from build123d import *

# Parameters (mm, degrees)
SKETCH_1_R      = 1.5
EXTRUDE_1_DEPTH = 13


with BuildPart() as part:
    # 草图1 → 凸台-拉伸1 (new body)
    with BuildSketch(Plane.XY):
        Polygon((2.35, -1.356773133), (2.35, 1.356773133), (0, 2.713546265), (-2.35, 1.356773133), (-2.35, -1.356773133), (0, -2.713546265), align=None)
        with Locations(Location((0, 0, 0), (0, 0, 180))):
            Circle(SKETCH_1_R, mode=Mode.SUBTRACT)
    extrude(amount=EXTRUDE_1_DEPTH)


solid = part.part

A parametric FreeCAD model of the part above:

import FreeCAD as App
import Part
import Sketcher

V = App.Vector
Q = App.Units.Quantity

doc = App.newDocument("Part")
body = doc.addObject("PartDesign::Body", "Body")

# Sketch on XY plane
sketch1 = doc.addObject("Sketcher::SketchObject", "Sketch")
body.addObject(sketch1)
sketch1.AttachmentSupport = (doc.XY_Plane, [""])
sketch1.MapMode = "FlatFace"
sketch1.addGeometry(Part.LineSegment(V(2.4, -1.4, 0), V(2.4, 1.4, 0)), False)
sketch1.addGeometry(Part.LineSegment(V(2.4, 1.4, 0), V(0, 2.7, 0)), False)
sketch1.addGeometry(Part.LineSegment(V(0, 2.7, 0), V(-2.4, 1.4, 0)), False)
sketch1.addGeometry(Part.LineSegment(V(-2.4, 1.4, 0), V(-2.4, -1.4, 0)), False)
sketch1.addGeometry(Part.LineSegment(V(-2.4, -1.4, 0), V(0, -2.7, 0)), False)
sketch1.addGeometry(Part.LineSegment(V(0, -2.7, 0), V(2.4, -1.4, 0)), False)
sketch1.addGeometry(Part.Circle(V(0, 0, 0), V(0, 0, 1), 1.5), False)
sketch1.addConstraint(Sketcher.Constraint("Coincident", 0, 2, 1, 1))
sketch1.addConstraint(Sketcher.Constraint("Coincident", 1, 2, 2, 1))
sketch1.addConstraint(Sketcher.Constraint("Coincident", 2, 2, 3, 1))
sketch1.addConstraint(Sketcher.Constraint("Coincident", 3, 2, 4, 1))
sketch1.addConstraint(Sketcher.Constraint("Coincident", 4, 2, 5, 1))
sketch1.addConstraint(Sketcher.Constraint("Coincident", 5, 2, 0, 1))
sketch1.addConstraint(Sketcher.Constraint("Vertical", 0))
sketch1.addConstraint(Sketcher.Constraint("Vertical", 3))
sketch1.addConstraint(Sketcher.Constraint("Coincident", 6, 3, -1, 1))
sketch1.addConstraint(Sketcher.Constraint("Symmetric", 0, 2, 3, 2, -1, 1))
sketch1.addConstraint(Sketcher.Constraint("Symmetric", 1, 2, 4, 2, -1, 1))
sketch1.addConstraint(Sketcher.Constraint("PointOnObject", 1, 2, -2))
sketch1.addConstraint(Sketcher.Constraint("Parallel", 2, 5))
sketch1.addConstraint(Sketcher.Constraint("Horizontal", 0, 2, 2, 2))
sketch1.addConstraint(Sketcher.Constraint("Diameter", 6, 3.0))
sketch1.addConstraint(Sketcher.Constraint("Angle", 1, Q("150 deg")))
sketch1.addConstraint(Sketcher.Constraint("DistanceX", 2, 2, 0, 2, 4.7))
sketch1.addConstraint(Sketcher.Constraint("DistanceY", 0, 1, 0, 2, 2.713546))
pad1 = doc.addObject("PartDesign::Pad", "Pad")
body.addObject(pad1)
pad1.Profile = sketch1
pad1.Length = 13

doc.recompute()
